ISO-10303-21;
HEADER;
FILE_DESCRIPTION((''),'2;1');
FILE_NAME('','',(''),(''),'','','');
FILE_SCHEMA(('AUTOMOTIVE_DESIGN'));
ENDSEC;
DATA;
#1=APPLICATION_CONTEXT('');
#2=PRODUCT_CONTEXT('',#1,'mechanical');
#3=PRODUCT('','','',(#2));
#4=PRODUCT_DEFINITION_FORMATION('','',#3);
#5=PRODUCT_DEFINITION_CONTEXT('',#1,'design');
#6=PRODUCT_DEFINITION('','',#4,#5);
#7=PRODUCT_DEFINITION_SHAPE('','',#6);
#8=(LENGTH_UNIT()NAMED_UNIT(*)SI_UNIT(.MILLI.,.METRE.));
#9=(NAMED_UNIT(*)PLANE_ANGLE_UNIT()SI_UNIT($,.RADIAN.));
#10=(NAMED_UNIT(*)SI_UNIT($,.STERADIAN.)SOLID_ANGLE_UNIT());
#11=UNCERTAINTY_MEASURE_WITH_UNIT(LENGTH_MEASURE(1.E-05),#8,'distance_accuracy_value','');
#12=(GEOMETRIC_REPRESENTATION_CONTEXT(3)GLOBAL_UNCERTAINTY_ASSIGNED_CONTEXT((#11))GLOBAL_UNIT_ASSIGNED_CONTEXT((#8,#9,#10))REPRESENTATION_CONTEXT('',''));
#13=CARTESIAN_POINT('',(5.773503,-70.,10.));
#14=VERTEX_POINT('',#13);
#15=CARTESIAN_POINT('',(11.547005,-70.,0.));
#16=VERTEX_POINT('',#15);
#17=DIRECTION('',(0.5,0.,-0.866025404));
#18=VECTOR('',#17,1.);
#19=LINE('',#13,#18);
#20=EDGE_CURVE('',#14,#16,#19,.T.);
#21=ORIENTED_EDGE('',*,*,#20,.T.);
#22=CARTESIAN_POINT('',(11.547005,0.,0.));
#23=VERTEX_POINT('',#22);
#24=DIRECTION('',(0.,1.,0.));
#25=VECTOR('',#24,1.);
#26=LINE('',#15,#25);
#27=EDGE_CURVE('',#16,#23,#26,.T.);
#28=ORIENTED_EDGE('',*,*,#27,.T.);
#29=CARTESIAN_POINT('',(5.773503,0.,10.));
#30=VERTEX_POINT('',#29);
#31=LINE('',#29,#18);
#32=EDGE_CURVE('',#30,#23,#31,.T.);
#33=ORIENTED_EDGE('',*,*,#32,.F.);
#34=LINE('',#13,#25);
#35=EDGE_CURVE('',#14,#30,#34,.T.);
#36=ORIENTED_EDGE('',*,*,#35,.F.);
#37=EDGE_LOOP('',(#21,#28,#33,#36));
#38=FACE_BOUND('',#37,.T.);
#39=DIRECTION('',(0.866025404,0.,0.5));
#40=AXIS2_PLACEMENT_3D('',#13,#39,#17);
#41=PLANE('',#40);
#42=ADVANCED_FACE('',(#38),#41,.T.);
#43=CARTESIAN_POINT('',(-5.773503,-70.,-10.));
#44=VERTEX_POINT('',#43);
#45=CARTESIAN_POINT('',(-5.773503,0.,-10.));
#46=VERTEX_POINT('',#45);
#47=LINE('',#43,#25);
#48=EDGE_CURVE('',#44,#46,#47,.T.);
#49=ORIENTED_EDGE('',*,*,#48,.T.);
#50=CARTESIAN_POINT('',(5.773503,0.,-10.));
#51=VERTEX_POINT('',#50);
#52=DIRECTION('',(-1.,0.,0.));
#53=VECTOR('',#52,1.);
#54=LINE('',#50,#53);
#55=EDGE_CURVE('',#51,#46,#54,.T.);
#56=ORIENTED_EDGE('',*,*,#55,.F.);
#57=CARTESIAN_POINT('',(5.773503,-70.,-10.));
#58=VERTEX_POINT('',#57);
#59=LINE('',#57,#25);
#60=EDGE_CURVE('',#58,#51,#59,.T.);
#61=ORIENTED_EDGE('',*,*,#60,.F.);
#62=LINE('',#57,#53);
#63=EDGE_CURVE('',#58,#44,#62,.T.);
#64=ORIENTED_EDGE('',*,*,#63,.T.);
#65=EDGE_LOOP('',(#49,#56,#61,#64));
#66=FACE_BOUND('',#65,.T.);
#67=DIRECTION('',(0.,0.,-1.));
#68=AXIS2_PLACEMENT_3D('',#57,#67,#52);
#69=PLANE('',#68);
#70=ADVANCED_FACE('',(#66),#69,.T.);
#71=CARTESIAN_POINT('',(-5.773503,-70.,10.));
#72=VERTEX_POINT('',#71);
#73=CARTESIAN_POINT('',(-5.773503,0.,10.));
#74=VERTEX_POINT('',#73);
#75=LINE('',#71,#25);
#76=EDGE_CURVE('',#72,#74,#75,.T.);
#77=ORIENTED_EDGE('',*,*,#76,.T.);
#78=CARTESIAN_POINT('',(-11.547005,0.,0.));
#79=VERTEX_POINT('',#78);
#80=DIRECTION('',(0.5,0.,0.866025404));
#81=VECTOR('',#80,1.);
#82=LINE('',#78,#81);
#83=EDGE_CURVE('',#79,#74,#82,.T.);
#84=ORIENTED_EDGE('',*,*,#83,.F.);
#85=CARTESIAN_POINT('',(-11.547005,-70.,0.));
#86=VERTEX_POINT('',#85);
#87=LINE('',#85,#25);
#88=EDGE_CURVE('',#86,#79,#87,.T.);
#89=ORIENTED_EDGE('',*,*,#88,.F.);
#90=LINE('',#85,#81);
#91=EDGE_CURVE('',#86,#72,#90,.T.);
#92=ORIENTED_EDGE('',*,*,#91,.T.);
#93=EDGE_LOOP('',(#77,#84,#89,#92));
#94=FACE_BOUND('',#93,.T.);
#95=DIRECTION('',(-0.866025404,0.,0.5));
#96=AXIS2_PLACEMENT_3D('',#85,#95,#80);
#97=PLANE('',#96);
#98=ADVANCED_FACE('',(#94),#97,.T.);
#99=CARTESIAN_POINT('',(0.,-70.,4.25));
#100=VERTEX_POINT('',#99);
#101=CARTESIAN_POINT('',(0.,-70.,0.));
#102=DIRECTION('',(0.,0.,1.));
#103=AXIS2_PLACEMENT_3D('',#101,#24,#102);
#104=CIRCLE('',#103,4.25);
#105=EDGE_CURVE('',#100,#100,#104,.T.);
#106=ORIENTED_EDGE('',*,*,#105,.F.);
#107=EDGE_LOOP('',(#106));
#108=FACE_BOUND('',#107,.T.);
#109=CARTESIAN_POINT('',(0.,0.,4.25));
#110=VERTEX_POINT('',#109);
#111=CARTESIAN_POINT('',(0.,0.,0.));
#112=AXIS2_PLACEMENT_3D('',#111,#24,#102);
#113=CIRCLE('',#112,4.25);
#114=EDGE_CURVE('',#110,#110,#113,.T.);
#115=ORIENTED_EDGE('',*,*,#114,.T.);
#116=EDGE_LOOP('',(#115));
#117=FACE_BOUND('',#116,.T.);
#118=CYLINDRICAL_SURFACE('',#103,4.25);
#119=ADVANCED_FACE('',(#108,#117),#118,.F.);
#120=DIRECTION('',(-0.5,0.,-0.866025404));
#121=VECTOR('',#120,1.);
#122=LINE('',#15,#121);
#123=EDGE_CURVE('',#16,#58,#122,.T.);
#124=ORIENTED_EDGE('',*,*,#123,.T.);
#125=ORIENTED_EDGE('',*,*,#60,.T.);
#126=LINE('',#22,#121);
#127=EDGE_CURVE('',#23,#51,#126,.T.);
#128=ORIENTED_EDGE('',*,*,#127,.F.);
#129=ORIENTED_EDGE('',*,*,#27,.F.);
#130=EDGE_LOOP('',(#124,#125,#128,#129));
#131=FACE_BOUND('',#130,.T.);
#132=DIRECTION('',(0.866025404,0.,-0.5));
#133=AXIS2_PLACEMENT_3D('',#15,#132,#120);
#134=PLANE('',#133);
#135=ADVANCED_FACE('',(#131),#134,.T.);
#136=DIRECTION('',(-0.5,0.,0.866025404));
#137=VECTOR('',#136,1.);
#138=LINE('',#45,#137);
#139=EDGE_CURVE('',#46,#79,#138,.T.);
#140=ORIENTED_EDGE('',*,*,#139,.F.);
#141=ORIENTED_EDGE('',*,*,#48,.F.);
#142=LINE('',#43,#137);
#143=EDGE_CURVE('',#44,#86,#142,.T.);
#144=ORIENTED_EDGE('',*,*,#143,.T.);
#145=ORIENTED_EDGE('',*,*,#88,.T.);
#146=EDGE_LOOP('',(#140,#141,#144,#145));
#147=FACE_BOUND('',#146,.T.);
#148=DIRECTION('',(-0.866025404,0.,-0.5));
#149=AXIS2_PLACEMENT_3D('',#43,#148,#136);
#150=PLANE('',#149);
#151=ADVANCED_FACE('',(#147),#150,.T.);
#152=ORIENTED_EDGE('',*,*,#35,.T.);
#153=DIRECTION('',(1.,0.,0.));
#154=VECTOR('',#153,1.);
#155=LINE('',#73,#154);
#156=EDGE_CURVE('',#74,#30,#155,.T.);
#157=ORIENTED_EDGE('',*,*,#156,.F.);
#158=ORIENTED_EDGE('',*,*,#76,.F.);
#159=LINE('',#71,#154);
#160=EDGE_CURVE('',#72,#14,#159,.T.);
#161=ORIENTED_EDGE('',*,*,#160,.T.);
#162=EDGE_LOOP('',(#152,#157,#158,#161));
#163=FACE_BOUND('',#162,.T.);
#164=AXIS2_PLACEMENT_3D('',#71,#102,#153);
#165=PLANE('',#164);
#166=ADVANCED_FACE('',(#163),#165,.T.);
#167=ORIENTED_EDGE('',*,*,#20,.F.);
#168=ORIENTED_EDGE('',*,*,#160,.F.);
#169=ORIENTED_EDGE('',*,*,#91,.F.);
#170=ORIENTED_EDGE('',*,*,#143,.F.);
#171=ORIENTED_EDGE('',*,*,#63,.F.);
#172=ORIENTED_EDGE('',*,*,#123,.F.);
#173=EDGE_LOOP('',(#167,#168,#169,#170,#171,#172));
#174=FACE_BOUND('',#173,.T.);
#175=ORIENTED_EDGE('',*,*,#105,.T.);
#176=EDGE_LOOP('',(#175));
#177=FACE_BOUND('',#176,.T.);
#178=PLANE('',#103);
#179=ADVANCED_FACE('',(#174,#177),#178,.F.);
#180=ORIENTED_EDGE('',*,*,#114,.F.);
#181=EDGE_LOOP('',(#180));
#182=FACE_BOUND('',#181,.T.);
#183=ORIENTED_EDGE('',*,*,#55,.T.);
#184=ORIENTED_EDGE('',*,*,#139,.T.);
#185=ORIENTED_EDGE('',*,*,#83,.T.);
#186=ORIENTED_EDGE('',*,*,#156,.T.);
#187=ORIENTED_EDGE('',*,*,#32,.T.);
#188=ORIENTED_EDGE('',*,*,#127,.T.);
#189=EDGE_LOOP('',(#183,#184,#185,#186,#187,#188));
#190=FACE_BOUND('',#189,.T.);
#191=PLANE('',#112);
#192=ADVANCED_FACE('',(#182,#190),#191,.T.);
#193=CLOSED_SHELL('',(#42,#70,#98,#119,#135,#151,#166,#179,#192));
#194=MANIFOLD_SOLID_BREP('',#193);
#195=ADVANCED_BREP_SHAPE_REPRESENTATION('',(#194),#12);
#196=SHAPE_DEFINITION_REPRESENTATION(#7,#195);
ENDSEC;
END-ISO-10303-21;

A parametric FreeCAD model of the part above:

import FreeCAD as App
import Part
import Sketcher
from FreeCAD import Vector
Q = App.Units.Quantity


def add_polygon(sketch, points):
    """Adds a closed chain of lines whose ends are joined by coincident constraints."""
    first, n = sketch.GeometryCount, len(points)
    for a, b in zip(points, points[1:] + points[:1]):
        sketch.addGeometry(Part.LineSegment(App.Vector(*a, 0), App.Vector(*b, 0)), False)
    for i in range(n):
        sketch.addConstraint(Sketcher.Constraint("Coincident", first + i, 2, first + (i + 1) % n, 1))

doc = App.newDocument("Part")
body = doc.addObject("PartDesign::Body", "Body")

# Sketch on XZ plane
sketch1 = body.newObject("Sketcher::SketchObject", "Sketch")
sketch1.AttachmentSupport = (doc.getObject("XZ_Plane"), [""])
sketch1.MapMode = "FlatFace"
add_polygon(sketch1, [(11.547005, 0), (5.773503, -10), (-5.773503, -10), (-11.547005, 0), (-5.773503, 10), (5.773503, 10)])  # lines 0-5
sketch1.addGeometry(Part.Circle(Vector(0, 0, 0), Vector(0, 0, 1), 4.25), False)  # 6
sketch1.addConstraint(Sketcher.Constraint("Horizontal", 1))
sketch1.addConstraint(Sketcher.Constraint("Horizontal", 4))
sketch1.addConstraint(Sketcher.Constraint("Coincident", 6, 3, -1, 1))
sketch1.addConstraint(Sketcher.Constraint("Symmetric", 0, 2, 3, 2, -1, 1))
sketch1.addConstraint(Sketcher.Constraint("Symmetric", 2, 2, 5, 2, -1, 1))
sketch1.addConstraint(Sketcher.Constraint("PointOnObject", 2, 2, -1))
sketch1.addConstraint(Sketcher.Constraint("Parallel", 2, 5))
sketch1.addConstraint(Sketcher.Constraint("Vertical", 1, 2, 3, 2))
sketch1.addConstraint(Sketcher.Constraint("Diameter", 6, 8.5))
sketch1.addConstraint(Sketcher.Constraint("Angle", 0, Q("-120 deg")))
sketch1.addConstraint(Sketcher.Constraint("DistanceY", 0, 2, -1, 1, 10.0))
sketch1.addConstraint(Sketcher.Constraint("DistanceX", 1, 2, 1, 1, 11.547005))
pad1 = body.newObject("PartDesign::Pad", "Pad")
pad1.Profile = sketch1
pad1.Length = 70

doc.recompute()
